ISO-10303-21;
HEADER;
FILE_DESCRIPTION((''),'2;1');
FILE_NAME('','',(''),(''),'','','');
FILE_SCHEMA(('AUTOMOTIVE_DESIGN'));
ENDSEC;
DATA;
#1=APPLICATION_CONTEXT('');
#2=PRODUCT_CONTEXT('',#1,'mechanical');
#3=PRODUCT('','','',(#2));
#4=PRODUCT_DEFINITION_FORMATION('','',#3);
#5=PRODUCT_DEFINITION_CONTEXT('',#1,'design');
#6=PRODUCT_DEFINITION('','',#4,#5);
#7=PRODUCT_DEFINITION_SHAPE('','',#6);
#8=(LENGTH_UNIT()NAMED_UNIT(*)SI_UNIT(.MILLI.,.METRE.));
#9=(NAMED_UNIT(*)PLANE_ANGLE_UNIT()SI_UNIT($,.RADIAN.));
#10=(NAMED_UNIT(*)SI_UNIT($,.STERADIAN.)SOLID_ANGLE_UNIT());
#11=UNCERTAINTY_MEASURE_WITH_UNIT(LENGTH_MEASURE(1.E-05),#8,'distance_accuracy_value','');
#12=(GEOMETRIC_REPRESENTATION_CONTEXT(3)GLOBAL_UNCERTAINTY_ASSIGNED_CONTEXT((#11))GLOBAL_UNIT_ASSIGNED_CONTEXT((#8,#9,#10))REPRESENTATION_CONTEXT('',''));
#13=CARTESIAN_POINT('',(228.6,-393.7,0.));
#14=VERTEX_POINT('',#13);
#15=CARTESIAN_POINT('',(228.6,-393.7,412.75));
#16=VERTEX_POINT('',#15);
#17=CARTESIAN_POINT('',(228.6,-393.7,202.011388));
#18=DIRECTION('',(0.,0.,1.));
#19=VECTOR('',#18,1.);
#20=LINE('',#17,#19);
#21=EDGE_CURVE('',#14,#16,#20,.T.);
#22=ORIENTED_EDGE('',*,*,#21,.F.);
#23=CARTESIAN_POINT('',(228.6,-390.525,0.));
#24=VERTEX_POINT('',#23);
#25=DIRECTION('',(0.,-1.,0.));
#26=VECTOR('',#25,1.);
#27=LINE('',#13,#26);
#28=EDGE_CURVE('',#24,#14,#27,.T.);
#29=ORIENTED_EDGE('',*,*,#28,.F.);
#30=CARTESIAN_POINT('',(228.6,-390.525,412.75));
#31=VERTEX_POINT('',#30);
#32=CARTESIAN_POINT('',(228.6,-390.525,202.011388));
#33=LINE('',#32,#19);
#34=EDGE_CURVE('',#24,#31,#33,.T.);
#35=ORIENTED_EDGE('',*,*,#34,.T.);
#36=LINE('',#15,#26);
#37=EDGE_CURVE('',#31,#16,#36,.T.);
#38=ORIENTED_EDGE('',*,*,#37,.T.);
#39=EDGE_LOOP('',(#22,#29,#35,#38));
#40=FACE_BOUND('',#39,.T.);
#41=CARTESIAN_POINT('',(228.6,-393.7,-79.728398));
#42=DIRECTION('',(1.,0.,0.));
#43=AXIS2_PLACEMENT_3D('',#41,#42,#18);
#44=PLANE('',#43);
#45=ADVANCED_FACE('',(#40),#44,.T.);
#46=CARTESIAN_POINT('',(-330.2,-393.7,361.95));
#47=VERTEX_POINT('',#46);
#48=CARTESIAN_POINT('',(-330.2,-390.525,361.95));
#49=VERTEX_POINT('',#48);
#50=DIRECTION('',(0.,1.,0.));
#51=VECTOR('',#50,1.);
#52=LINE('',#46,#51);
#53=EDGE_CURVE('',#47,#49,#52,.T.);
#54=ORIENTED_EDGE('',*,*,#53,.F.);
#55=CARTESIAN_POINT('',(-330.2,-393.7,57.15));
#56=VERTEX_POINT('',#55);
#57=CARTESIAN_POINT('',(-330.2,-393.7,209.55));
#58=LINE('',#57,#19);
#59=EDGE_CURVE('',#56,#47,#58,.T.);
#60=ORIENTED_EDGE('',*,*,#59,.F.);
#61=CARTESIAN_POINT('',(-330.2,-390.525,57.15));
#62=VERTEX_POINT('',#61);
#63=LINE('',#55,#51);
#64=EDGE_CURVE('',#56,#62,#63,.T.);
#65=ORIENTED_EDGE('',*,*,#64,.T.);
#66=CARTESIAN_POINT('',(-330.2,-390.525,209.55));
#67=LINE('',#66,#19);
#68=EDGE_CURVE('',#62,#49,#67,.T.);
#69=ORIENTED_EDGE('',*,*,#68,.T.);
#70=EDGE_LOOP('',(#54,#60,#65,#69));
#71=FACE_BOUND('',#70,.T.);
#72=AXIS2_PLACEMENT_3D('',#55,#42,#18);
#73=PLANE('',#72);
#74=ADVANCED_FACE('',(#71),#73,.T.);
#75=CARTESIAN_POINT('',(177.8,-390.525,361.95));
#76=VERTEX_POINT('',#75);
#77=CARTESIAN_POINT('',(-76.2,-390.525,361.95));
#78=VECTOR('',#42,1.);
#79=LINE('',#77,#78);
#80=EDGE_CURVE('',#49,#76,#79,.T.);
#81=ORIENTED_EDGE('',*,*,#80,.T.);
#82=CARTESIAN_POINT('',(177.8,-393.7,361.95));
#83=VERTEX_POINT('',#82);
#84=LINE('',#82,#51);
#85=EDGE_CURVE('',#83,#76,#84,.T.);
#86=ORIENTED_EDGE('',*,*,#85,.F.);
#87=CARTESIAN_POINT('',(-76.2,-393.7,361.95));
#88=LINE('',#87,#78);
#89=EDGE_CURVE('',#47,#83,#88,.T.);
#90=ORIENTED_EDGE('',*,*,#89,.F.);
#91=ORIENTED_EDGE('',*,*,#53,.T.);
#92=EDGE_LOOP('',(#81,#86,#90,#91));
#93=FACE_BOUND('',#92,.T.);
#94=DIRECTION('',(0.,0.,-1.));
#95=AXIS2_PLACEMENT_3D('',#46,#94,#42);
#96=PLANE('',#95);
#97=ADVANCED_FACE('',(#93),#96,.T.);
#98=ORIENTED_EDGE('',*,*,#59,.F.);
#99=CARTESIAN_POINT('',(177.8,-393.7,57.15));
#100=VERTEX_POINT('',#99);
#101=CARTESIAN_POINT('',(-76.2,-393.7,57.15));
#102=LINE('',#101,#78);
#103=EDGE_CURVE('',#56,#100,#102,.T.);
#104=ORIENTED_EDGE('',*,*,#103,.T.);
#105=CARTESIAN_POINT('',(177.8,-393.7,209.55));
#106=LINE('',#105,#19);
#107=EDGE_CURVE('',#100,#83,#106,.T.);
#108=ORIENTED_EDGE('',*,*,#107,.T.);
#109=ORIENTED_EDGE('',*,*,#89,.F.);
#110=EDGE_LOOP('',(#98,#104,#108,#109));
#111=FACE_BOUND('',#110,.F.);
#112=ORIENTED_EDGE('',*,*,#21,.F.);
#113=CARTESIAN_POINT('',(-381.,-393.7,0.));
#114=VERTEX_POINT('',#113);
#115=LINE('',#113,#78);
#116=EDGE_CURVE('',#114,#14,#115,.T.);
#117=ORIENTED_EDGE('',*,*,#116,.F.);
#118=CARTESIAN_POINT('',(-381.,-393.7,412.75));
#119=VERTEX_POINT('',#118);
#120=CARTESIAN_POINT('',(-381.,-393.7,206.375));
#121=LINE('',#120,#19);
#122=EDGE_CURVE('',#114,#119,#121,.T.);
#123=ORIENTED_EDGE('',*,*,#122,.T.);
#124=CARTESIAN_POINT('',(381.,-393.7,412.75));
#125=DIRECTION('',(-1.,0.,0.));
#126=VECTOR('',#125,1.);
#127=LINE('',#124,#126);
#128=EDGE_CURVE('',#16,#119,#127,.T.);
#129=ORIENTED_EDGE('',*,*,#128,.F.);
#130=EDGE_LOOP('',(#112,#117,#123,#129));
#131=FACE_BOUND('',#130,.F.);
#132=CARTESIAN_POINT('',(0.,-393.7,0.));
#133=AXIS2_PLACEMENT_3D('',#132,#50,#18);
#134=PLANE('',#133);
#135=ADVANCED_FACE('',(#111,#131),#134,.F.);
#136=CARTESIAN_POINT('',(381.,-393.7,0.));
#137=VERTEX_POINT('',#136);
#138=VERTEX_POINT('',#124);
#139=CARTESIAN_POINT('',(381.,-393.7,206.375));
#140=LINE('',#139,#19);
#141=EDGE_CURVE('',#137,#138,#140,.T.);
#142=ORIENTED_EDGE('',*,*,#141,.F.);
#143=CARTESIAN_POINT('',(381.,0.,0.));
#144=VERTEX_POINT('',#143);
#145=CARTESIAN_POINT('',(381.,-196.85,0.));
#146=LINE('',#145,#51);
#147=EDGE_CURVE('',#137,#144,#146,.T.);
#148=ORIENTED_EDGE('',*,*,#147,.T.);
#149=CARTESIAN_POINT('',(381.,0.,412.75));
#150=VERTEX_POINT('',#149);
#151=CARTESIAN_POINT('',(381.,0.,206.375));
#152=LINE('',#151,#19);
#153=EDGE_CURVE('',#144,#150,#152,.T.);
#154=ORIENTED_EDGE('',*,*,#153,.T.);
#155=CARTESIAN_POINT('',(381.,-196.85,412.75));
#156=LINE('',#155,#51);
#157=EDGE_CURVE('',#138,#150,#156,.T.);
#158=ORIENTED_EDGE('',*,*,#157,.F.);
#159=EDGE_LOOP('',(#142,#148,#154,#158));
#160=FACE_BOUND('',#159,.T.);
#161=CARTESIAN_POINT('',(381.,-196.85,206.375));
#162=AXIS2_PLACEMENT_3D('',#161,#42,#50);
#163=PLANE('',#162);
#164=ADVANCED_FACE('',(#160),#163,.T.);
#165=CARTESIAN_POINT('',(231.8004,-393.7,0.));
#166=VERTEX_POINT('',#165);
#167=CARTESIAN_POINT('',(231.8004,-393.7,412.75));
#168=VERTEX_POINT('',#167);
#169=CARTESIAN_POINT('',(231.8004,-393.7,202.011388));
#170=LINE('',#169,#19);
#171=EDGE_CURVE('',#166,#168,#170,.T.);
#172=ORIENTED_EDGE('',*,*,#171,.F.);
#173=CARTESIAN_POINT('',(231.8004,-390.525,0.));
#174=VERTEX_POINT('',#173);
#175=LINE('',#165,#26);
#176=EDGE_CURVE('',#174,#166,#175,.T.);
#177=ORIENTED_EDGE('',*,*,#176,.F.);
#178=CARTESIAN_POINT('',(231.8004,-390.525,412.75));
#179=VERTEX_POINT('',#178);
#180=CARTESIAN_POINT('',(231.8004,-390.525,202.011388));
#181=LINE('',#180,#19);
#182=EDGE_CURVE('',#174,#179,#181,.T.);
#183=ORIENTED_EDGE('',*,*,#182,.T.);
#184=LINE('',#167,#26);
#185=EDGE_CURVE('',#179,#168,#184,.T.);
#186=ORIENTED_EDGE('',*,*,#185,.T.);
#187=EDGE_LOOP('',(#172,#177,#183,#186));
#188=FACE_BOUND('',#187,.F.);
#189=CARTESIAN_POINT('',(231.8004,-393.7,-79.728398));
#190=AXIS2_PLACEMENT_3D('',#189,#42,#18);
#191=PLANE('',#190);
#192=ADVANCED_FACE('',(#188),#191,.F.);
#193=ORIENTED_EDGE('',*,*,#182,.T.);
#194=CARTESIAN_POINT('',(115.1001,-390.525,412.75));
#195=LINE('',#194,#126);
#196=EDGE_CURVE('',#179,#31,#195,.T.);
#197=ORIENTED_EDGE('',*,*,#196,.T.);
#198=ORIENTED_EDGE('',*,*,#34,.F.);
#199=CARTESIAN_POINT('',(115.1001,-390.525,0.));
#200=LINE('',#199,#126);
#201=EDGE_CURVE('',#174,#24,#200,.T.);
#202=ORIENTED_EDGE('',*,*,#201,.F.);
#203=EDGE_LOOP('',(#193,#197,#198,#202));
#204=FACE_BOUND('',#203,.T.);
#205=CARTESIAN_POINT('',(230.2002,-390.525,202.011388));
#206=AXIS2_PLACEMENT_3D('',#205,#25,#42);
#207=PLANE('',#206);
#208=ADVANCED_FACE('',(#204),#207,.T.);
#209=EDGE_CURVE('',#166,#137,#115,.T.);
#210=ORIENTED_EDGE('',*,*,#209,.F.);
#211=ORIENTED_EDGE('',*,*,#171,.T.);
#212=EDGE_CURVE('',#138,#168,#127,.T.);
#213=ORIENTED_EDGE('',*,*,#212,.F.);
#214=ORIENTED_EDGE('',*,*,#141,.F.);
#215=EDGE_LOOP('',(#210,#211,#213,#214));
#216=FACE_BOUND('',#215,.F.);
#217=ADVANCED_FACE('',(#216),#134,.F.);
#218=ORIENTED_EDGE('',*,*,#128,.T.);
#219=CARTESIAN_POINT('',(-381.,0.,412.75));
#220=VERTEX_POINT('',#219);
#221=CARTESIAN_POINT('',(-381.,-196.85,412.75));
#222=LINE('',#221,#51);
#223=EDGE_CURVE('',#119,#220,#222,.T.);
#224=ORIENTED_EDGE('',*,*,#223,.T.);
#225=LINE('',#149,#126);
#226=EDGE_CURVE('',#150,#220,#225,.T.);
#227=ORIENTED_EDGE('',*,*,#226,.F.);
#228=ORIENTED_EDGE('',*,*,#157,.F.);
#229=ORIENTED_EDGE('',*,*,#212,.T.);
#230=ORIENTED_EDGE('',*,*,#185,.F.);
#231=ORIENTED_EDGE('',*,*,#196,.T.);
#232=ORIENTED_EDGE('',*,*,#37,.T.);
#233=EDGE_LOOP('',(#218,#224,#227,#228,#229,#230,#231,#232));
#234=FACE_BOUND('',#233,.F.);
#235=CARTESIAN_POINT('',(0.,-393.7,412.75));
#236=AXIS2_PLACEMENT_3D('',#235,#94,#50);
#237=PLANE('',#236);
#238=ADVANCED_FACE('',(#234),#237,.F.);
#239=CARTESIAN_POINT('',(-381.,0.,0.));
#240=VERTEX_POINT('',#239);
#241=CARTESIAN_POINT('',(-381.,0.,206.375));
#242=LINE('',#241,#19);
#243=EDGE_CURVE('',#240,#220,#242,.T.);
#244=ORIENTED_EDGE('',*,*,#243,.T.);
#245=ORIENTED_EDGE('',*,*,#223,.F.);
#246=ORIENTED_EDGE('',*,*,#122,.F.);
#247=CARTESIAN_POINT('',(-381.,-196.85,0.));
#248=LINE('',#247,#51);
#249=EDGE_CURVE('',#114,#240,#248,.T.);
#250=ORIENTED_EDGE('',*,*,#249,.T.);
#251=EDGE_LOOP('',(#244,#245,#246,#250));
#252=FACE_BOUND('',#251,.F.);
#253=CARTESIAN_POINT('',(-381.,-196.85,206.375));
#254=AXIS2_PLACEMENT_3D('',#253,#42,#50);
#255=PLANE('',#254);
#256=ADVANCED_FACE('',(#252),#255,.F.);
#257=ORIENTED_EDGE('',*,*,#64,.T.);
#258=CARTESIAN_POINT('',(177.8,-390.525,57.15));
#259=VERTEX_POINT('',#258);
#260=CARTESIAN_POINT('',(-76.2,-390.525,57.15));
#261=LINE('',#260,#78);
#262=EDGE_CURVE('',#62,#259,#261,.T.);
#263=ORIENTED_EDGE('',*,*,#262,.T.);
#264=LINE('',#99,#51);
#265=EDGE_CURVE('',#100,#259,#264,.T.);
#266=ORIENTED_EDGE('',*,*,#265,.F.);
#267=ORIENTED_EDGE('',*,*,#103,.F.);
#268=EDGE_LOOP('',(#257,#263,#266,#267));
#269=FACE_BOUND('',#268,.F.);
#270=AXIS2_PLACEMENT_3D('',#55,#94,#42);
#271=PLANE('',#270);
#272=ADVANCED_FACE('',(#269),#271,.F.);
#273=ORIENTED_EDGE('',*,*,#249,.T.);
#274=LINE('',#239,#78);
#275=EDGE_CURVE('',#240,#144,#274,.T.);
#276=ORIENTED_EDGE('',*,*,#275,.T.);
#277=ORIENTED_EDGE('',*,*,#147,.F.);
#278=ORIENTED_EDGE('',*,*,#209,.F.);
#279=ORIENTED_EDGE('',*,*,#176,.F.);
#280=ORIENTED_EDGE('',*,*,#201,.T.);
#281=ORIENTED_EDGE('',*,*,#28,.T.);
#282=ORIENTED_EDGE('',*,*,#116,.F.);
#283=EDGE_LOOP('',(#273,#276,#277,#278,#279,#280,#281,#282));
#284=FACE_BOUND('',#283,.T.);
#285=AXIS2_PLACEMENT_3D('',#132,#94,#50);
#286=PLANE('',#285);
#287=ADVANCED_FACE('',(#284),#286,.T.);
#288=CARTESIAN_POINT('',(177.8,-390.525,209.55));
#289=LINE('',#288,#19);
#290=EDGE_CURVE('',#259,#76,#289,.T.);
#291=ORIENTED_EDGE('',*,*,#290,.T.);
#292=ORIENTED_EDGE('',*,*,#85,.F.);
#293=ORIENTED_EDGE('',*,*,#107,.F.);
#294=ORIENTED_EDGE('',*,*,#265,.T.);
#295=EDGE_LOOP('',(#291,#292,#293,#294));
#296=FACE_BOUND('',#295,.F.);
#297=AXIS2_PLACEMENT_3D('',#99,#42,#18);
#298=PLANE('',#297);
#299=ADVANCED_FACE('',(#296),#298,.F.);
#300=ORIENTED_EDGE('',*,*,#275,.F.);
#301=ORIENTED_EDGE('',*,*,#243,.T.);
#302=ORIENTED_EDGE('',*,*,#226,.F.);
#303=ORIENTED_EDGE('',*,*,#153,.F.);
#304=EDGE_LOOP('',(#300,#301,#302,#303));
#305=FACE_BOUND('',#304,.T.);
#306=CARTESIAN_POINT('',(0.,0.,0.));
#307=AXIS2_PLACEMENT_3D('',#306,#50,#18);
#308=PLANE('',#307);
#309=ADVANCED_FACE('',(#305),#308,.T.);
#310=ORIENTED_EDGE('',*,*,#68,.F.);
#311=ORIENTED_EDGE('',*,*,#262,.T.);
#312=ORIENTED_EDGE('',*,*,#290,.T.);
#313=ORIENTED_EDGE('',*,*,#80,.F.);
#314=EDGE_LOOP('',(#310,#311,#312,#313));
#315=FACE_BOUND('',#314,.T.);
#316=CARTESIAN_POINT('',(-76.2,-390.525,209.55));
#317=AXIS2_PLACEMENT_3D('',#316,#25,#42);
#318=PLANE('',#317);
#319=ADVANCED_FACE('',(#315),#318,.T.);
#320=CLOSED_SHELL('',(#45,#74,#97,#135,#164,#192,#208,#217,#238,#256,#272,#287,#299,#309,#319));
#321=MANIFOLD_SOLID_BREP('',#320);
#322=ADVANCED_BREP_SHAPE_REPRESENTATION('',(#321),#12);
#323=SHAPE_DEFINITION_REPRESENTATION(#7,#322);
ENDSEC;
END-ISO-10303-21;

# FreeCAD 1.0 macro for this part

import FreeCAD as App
import Part
import Sketcher
from FreeCAD import Vector
Q = App.Units.Quantity

doc = App.newDocument("Part")
body = doc.addObject("PartDesign::Body", "Body")

# Sketch on YZ plane
sketch1 = body.newObject("Sketcher::SketchObject", "Sketch")
sketch1.AttachmentSupport = (doc.getObject("YZ_Plane"), [""])
sketch1.MapMode = "FlatFace"
sketch1.addGeometry([
    Part.LineSegment(Vector(-394, 413, 0), Vector(-394, 0, 0)),
    Part.LineSegment(Vector(-394, 0, 0), Vector(0, 0, 0)),
    Part.LineSegment(Vector(0, 0, 0), Vector(0, 413, 0)),
    Part.LineSegment(Vector(0, 413, 0), Vector(-394, 413, 0)),
], False)
sketch1.addConstraint([
    Sketcher.Constraint("Coincident", 0, 2, 1, 1),
    Sketcher.Constraint("Coincident", 1, 2, 2, 1),
    Sketcher.Constraint("Coincident", 2, 2, 3, 1),
    Sketcher.Constraint("Coincident", 3, 2, 0, 1),
    Sketcher.Constraint("Vertical", 0),
    Sketcher.Constraint("Horizontal", 1),
    Sketcher.Constraint("Vertical", 2),
    Sketcher.Constraint("Horizontal", 3),
    Sketcher.Constraint("Coincident", 1, 2, -1, 1),
    Sketcher.Constraint("DistanceX", 1, 1, 1, 2, Q("15.5 in")),
    Sketcher.Constraint("DistanceY", 0, 2, 0, 1, Q("16.25 in")),
])
pad1 = body.newObject("PartDesign::Pad", "Pad")
pad1.Profile = sketch1
pad1.Length = Q("30 in")
pad1.Midplane = True

# Sketch on XZ plane
sketch2 = body.newObject("Sketcher::SketchObject", "Sketch001")
sketch2.AttachmentSupport = (doc.getObject("XZ_Plane"), [""])
sketch2.MapMode = "FlatFace"
sketch2.AttachmentOffset = App.Placement(Vector(0, 0, 15.5 * 25.4), App.Rotation())
sketch2.addGeometry([
    Part.LineSegment(Vector(-330, 362, 0), Vector(-330, 57, 0)),
    Part.LineSegment(Vector(-330, 57, 0), Vector(178, 57, 0)),
    Part.LineSegment(Vector(178, 57, 0), Vector(178, 362, 0)),
    Part.LineSegment(Vector(178, 362, 0), Vector(-330, 362, 0)),
], False)
sketch2.addConstraint([
    Sketcher.Constraint("Coincident", 0, 2, 1, 1),
    Sketcher.Constraint("Coincident", 1, 2, 2, 1),
    Sketcher.Constraint("Coincident", 2, 2, 3, 1),
    Sketcher.Constraint("Coincident", 3, 2, 0, 1),
    Sketcher.Constraint("Vertical", 0),
    Sketcher.Constraint("Horizontal", 1),
    Sketcher.Constraint("Vertical", 2),
    Sketcher.Constraint("Horizontal", 3),
    Sketcher.Constraint("DistanceX", 1, 1, 1, 2, Q("20 in")),
    Sketcher.Constraint("DistanceY", 0, 2, 0, 1, Q("12 in")),
    Sketcher.Constraint("DistanceX", 0, 2, -1, 1, Q("13 in")),
    Sketcher.Constraint("DistanceY", -1, 1, 0, 2, Q("2.25 in")),
])
pocket1 = body.newObject("PartDesign::Pocket", "Pocket")
pocket1.Profile = sketch2
pocket1.Length = Q("0.125 in")

# Sketch on XZ plane
sketch3 = body.newObject("Sketcher::SketchObject", "Sketch002")
sketch3.AttachmentSupport = (doc.getObject("XZ_Plane"), [""])
sketch3.MapMode = "FlatFace"
sketch3.AttachmentOffset = App.Placement(Vector(0, 0, 15.5 * 25.4), App.Rotation())
sketch3.addGeometry([
    Part.LineSegment(Vector(228.6, 483.8, 0), Vector(228.6, -79.7, 0)),
    Part.LineSegment(Vector(228.6, -79.7, 0), Vector(231.8, -79.7, 0)),
    Part.LineSegment(Vector(231.8, -79.7, 0), Vector(231.8, 483.8, 0)),
    Part.LineSegment(Vector(231.8, 483.8, 0), Vector(228.6, 483.8, 0)),
], False)
sketch3.addConstraint([
    Sketcher.Constraint("Coincident", 0, 2, 1, 1),
    Sketcher.Constraint("Coincident", 1, 2, 2, 1),
    Sketcher.Constraint("Coincident", 2, 2, 3, 1),
    Sketcher.Constraint("Coincident", 3, 2, 0, 1),
    Sketcher.Constraint("Vertical", 0),
    Sketcher.Constraint("Horizontal", 1),
    Sketcher.Constraint("Vertical", 2),
    Sketcher.Constraint("Horizontal", 3),
    Sketcher.Constraint("DistanceX", -1, 1, 0, 2, Q("9 in")),
    Sketcher.Constraint("DistanceX", 1, 1, 1, 2, Q("0.126 in")),
    Sketcher.Constraint("DistanceY", 0, 2, -1, 1, Q("79.728398 mm")),
    Sketcher.Constraint("DistanceY", 0, 2, 0, 1, Q("563.479573 mm")),
])
pocket2 = body.newObject("PartDesign::Pocket", "Pocket001")
pocket2.Profile = sketch3
pocket2.Length = Q("0.125 in")

doc.recompute()
